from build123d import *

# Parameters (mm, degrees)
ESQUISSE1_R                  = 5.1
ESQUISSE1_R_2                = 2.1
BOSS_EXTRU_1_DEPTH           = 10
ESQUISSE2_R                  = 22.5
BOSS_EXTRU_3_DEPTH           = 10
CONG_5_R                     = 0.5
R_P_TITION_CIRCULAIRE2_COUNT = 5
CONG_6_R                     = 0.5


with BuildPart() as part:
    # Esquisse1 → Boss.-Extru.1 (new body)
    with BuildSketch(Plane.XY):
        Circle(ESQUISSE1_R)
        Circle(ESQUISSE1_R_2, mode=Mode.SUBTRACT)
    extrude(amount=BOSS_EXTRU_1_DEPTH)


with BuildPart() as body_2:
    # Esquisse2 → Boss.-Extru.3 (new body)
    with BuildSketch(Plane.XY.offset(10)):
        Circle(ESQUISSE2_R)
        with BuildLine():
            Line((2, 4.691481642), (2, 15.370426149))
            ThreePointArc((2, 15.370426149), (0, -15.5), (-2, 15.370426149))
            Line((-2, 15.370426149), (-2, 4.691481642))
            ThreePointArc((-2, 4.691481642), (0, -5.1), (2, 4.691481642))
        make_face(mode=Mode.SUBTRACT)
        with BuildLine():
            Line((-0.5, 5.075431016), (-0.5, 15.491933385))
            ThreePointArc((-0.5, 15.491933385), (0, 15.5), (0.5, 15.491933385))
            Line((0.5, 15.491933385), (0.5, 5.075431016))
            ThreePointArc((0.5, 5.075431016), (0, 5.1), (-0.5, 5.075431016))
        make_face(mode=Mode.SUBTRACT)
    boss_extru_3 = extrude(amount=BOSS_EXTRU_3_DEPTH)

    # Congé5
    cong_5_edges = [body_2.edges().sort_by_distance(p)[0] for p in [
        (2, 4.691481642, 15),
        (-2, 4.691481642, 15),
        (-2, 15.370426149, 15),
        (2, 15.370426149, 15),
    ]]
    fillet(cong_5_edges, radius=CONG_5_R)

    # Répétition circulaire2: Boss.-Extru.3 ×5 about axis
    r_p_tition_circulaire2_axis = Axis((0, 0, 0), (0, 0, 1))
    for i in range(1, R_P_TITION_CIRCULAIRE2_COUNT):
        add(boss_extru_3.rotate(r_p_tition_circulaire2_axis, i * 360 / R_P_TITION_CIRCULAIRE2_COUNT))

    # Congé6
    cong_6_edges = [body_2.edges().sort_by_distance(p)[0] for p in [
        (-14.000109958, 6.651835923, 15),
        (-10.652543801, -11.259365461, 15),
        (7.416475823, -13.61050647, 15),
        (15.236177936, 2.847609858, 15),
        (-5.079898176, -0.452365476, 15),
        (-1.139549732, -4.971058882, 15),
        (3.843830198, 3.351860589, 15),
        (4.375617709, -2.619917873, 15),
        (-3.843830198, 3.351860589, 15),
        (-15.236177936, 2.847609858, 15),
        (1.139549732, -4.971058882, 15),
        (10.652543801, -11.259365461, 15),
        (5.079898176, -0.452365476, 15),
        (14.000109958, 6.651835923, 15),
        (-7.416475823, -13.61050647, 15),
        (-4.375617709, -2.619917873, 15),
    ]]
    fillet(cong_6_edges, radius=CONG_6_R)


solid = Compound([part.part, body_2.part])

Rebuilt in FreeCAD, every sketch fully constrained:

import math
import FreeCAD as App
import Part
import Sketcher

V = App.Vector


def edges_at(feature, points):
    """Names of the edges that pass closest to the given points."""
    edges = feature.Shape.Edges
    near = lambda p: min(range(len(edges)), key=lambda i: edges[i].distToShape(Part.Vertex(*p))[0])
    return sorted({f"Edge{near(p) + 1}" for p in points})

doc = App.newDocument("Part")
body = doc.addObject("PartDesign::Body", "Body")

# Sketch on XY plane
sketch1 = body.newObject("Sketcher::SketchObject", "Sketch")
sketch1.AttachmentSupport = (doc.getObject("XY_Plane"), [""])
sketch1.MapMode = "FlatFace"
sketch1.addGeometry(Part.Circle(V(0, 0, 0), V(0, 0, 1), 5.1), False)
sketch1.addGeometry(Part.Circle(V(0, 0, 0), V(0, 0, 1), 2.1), False)
sketch1.addConstraint(Sketcher.Constraint("Coincident", 0, 3, -1, 1))
sketch1.addConstraint(Sketcher.Constraint("Coincident", 1, 3, -1, 1))
sketch1.addConstraint(Sketcher.Constraint("Diameter", 0, 10.2))
sketch1.addConstraint(Sketcher.Constraint("Diameter", 1, 4.2))
pad1 = body.newObject("PartDesign::Pad", "Pad")
pad1.Profile = sketch1
pad1.Length = 10
body2 = doc.addObject("PartDesign::Body", "Body001")

# Sketch on XY plane
sketch2 = body2.newObject("Sketcher::SketchObject", "Sketch001")
sketch2.AttachmentSupport = (doc.getObject("XY_Plane001"), [""])
sketch2.MapMode = "FlatFace"
sketch2.AttachmentOffset = App.Placement(V(0, 0, 10), App.Rotation())
sketch2.addGeometry(Part.Circle(V(0, 0, 0), V(0, 0, 1), 22.5), False)
sketch2.addGeometry(Part.ArcOfCircle(Part.Circle(V(0, 0, 0), V(0, 0, 1), 5.1), math.radians(113), math.radians(427)), False)
sketch2.addGeometry(Part.LineSegment(V(2, 4.7, 0), V(2, 15.4, 0)), False)
sketch2.addGeometry(Part.ArcOfCircle(Part.Circle(V(0, 0, 0), V(0, 0, 1), 15.5), math.radians(97), math.radians(443)), False)
sketch2.addGeometry(Part.LineSegment(V(-2, 15.4, 0), V(-2, 4.7, 0)), False)
sketch2.addGeometry(Part.ArcOfCircle(Part.Circle(V(0, 0, 0), V(0, 0, 1), 5.1), math.radians(84.37), math.radians(95.63)), False)
sketch2.addGeometry(Part.LineSegment(V(-0.5, 5.1, 0), V(-0.5, 15.5, 0)), False)
sketch2.addGeometry(Part.ArcOfCircle(Part.Circle(V(0, 0, 0), V(0, 0, 1), 15.5), math.radians(88.15), math.radians(91.85)), False)
sketch2.addGeometry(Part.LineSegment(V(0.5, 15.5, 0), V(0.5, 5.1, 0)), False)
sketch2.addConstraint(Sketcher.Constraint("Coincident", 1, 2, 2, 1))
sketch2.addConstraint(Sketcher.Constraint("Coincident", 2, 2, 3, 2))
sketch2.addConstraint(Sketcher.Constraint("Coincident", 3, 1, 4, 1))
sketch2.addConstraint(Sketcher.Constraint("Coincident", 4, 2, 1, 1))
sketch2.addConstraint(Sketcher.Constraint("Coincident", 5, 2, 6, 1))
sketch2.addConstraint(Sketcher.Constraint("Coincident", 6, 2, 7, 2))
sketch2.addConstraint(Sketcher.Constraint("Coincident", 7, 1, 8, 1))
sketch2.addConstraint(Sketcher.Constraint("Coincident", 8, 2, 5, 1))
sketch2.addConstraint(Sketcher.Constraint("Vertical", 2))
sketch2.addConstraint(Sketcher.Constraint("Vertical", 4))
sketch2.addConstraint(Sketcher.Constraint("Vertical", 6))
sketch2.addConstraint(Sketcher.Constraint("Vertical", 8))
sketch2.addConstraint(Sketcher.Constraint("Coincident", 0, 3, -1, 1))
sketch2.addConstraint(Sketcher.Constraint("Coincident", 1, 3, -1, 1))
sketch2.addConstraint(Sketcher.Constraint("Coincident", 3, 3, -1, 1))
sketch2.addConstraint(Sketcher.Constraint("Coincident", 5, 3, -1, 1))
sketch2.addConstraint(Sketcher.Constraint("Coincident", 7, 3, -1, 1))
sketch2.addConstraint(Sketcher.Constraint("Equal", 1, 5))
sketch2.addConstraint(Sketcher.Constraint("Equal", 3, 7))
sketch2.addConstraint(Sketcher.Constraint("Horizontal", 2, 2, 3, 1))
sketch2.addConstraint(Sketcher.Constraint("Horizontal", 6, 2, 7, 1))
sketch2.addConstraint(Sketcher.Constraint("Diameter", 0, 45.0))
sketch2.addConstraint(Sketcher.Constraint("Radius", 1, 5.1))
sketch2.addConstraint(Sketcher.Constraint("Radius", 3, 15.5))
sketch2.addConstraint(Sketcher.Constraint("DistanceX", -1, 1, 1, 2, 2.0))
sketch2.addConstraint(Sketcher.Constraint("DistanceX", 6, 2, 7, 1, 1.0))
pad2 = body2.newObject("PartDesign::Pad", "Pad001")
pad2.Profile = sketch2
pad2.Length = 10
doc.recompute()

fillet = body2.newObject("PartDesign::Fillet", "Fillet")
fillet.Base = (pad2, edges_at(pad2, [
    (2, 4.691, 15),
    (-2, 4.691, 15),
    (-2, 15.37, 15),
    (2, 15.37, 15),
]))
fillet.Radius = 0.5
doc.recompute()

polarpattern = body2.newObject("PartDesign::PolarPattern", "PolarPattern")
polarpattern.Originals = [pad2]
polarpattern.Axis = (doc.getObject("Z_Axis001"), [""])
polarpattern.Angle = 360
polarpattern.Occurrences = 5
body2.Tip = polarpattern
doc.recompute()

fillet2 = body2.newObject("PartDesign::Fillet", "Fillet001")
fillet2.Base = (polarpattern, edges_at(polarpattern, [
    (-14, 6.652, 15),
    (-10.653, -11.259, 15),
    (7.416, -13.611, 15),
    (15.236, 2.848, 15),
    (-5.08, -0.452, 15),
    (-1.14, -4.971, 15),
    (3.844, 3.352, 15),
    (4.376, -2.62, 15),
    (-3.844, 3.352, 15),
    (-15.236, 2.848, 15),
    (1.14, -4.971, 15),
    (10.653, -11.259, 15),
    (5.08, -0.452, 15),
    (14, 6.652, 15),
    (-7.416, -13.611, 15),
    (-4.376, -2.62, 15),
]))
fillet2.Radius = 0.5

doc.recompute()
